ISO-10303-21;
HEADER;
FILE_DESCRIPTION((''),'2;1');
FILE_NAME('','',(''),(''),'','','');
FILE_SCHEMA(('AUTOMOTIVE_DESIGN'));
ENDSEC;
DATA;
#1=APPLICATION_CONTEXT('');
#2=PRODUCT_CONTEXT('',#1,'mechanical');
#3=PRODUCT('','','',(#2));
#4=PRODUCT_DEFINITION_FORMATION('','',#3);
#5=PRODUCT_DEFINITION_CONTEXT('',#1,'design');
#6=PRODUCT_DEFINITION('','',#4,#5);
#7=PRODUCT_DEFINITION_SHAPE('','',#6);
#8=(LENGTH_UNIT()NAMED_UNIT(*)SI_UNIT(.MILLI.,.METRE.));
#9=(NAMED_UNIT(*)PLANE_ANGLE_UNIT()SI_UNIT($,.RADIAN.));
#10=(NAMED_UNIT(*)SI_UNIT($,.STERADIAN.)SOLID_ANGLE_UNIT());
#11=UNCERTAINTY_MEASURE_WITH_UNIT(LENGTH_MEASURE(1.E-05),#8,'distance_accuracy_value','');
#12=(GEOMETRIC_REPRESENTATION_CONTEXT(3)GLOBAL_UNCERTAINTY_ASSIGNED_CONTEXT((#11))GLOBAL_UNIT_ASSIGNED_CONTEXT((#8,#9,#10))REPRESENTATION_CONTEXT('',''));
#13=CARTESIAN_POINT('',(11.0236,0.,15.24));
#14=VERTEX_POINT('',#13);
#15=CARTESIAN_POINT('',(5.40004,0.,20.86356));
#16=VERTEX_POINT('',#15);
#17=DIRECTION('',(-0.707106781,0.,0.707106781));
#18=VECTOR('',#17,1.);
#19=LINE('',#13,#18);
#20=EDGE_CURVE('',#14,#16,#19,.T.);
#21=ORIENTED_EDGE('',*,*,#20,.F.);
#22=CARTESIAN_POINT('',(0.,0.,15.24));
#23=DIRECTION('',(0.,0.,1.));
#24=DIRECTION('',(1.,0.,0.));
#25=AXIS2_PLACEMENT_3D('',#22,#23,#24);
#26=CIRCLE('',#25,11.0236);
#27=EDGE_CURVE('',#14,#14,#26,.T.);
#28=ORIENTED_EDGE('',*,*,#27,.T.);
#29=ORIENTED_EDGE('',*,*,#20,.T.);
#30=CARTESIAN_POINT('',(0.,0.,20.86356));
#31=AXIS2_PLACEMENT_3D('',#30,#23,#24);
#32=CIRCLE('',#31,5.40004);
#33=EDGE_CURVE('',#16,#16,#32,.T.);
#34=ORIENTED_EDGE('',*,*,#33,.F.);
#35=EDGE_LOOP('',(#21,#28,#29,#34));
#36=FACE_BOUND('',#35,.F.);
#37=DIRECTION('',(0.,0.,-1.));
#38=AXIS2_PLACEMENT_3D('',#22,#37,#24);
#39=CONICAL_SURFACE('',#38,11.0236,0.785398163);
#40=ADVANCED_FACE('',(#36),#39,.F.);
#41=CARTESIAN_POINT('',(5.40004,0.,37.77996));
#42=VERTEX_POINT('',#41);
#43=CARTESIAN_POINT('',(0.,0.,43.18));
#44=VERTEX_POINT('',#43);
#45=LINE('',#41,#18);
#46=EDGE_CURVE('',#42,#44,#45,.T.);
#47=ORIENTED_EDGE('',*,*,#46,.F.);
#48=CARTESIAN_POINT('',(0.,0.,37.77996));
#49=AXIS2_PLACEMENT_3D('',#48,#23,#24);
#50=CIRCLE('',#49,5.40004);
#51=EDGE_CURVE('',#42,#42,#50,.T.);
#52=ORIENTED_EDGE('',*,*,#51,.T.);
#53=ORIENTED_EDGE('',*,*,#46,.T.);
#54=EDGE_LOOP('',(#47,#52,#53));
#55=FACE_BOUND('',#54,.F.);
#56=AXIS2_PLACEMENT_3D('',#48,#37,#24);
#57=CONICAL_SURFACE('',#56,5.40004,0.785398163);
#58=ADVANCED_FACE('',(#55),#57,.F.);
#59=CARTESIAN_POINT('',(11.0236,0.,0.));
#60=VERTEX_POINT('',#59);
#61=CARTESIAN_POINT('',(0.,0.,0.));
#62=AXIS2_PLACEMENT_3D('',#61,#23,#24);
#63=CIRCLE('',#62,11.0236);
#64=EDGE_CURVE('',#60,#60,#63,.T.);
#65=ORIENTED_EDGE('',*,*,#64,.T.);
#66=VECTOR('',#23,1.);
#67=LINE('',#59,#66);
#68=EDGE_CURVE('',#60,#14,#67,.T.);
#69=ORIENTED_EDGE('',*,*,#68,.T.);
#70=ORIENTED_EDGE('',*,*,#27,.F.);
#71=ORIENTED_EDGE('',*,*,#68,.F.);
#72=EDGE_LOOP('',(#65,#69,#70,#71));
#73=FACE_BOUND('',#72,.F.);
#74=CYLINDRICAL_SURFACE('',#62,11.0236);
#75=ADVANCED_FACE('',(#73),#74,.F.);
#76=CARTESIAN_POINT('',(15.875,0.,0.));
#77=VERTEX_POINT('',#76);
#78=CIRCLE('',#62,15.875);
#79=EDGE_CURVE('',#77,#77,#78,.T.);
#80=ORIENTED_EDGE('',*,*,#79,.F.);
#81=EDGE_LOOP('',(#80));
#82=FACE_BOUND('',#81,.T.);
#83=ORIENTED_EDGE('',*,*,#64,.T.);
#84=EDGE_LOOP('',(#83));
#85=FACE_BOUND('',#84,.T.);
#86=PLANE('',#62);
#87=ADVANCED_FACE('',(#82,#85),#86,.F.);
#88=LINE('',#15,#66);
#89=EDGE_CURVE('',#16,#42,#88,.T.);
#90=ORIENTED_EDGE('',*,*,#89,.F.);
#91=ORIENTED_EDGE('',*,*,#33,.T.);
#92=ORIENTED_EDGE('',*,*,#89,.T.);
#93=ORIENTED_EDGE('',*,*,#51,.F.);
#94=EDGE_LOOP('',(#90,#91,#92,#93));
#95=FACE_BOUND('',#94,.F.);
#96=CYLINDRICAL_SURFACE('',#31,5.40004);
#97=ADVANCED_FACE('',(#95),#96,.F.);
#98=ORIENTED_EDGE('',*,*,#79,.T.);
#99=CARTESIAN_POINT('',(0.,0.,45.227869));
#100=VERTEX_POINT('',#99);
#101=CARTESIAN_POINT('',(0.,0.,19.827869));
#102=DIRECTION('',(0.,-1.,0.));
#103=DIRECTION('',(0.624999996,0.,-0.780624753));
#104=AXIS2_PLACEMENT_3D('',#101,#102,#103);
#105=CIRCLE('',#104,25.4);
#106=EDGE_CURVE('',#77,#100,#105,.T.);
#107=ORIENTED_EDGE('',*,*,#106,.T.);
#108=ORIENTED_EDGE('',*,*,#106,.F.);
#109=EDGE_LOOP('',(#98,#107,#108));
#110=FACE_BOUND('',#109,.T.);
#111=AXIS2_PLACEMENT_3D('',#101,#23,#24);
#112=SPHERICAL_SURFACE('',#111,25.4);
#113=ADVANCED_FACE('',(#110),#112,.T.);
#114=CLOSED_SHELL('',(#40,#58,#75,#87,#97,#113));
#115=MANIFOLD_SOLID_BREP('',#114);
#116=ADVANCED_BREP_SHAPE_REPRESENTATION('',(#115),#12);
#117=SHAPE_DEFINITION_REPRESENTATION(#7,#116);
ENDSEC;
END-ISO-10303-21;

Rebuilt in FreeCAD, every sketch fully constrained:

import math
import FreeCAD as App
import Part
import Sketcher
Q = App.Units.Quantity


def add_polygon(sketch, points):
    """Adds a closed chain of lines whose ends are joined by coincident constraints."""
    first, n = sketch.GeometryCount, len(points)
    for a, b in zip(points, points[1:] + points[:1]):
        sketch.addGeometry(Part.LineSegment(App.Vector(*a, 0), App.Vector(*b, 0)), False)
    for i in range(n):
        sketch.addConstraint(Sketcher.Constraint("Coincident", first + i, 2, first + (i + 1) % n, 1))

doc = App.newDocument("Part")
body = doc.addObject("PartDesign::Body", "Body")

sketch1 = body.newObject("Sketcher::SketchObject", "Sketch")
sketch1.AttachmentSupport = (doc.getObject("XZ_Plane"), [""])
sketch1.MapMode = "FlatFace"
sketch1.addGeometry(Part.LineSegment(App.Vector(0, 45, 0), App.Vector(0, 0, 0)), False)
sketch1.addGeometry(Part.LineSegment(App.Vector(0, 0, 0), App.Vector(16, 0, 0)), False)
sketch1.addGeometry(Part.ArcOfCircle(Part.Circle(App.Vector(0, 20, 0), App.Vector(0, 0, 1), 25), math.radians(-51), math.radians(90)), False)
sketch1.addConstraint(Sketcher.Constraint("Coincident", 0, 2, 1, 1))
sketch1.addConstraint(Sketcher.Constraint("Coincident", 1, 2, 2, 1))
sketch1.addConstraint(Sketcher.Constraint("Coincident", 2, 2, 0, 1))
sketch1.addConstraint(Sketcher.Constraint("Vertical", 0))
sketch1.addConstraint(Sketcher.Constraint("Horizontal", 1))
sketch1.addConstraint(Sketcher.Constraint("Coincident", 0, 2, -1, 1))
sketch1.addConstraint(Sketcher.Constraint("PointOnObject", 2, 3, -2))
sketch1.addConstraint(Sketcher.Constraint("Radius", 2, Q("1 in")))
sketch1.addConstraint(Sketcher.Constraint("DistanceX", 1, 1, 1, 2, Q("0.625 in")))
revolution = body.newObject("PartDesign::Revolution", "Revolution")
revolution.Profile = sketch1
revolution.ReferenceAxis = (sketch1, ["V_Axis"])
revolution.Angle = 360

sketch2 = body.newObject("Sketcher::SketchObject", "Sketch001")
sketch2.AttachmentSupport = (doc.getObject("XZ_Plane"), [""])
sketch2.MapMode = "FlatFace"
add_polygon(sketch2, [(0, 43), (0, 0), (11, 0), (11, 15), (5, 21), (5, 38)])
sketch2.addConstraint(Sketcher.Constraint("Vertical", 0))
sketch2.addConstraint(Sketcher.Constraint("Horizontal", 1))
sketch2.addConstraint(Sketcher.Constraint("Vertical", 2))
sketch2.addConstraint(Sketcher.Constraint("Vertical", 4))
sketch2.addConstraint(Sketcher.Constraint("Coincident", 0, 2, -1, 1))
sketch2.addConstraint(Sketcher.Constraint("Parallel", 3, 5))
sketch2.addConstraint(Sketcher.Constraint("DistanceY", 0, 2, 0, 1, Q("1.7 in")))
sketch2.addConstraint(Sketcher.Constraint("DistanceY", 2, 1, 2, 2, Q("0.6 in")))
sketch2.addConstraint(Sketcher.Constraint("Angle", 3, Q("135 deg")))
sketch2.addConstraint(Sketcher.Constraint("DistanceX", 1, 1, 1, 2, Q("0.434 in")))
sketch2.addConstraint(Sketcher.Constraint("DistanceX", -1, 1, 3, 2, Q("0.2126 in")))
groove = body.newObject("PartDesign::Groove", "Groove")
groove.Profile = sketch2
groove.ReferenceAxis = (sketch2, ["V_Axis"])
groove.Angle = 360

doc.recompute()
